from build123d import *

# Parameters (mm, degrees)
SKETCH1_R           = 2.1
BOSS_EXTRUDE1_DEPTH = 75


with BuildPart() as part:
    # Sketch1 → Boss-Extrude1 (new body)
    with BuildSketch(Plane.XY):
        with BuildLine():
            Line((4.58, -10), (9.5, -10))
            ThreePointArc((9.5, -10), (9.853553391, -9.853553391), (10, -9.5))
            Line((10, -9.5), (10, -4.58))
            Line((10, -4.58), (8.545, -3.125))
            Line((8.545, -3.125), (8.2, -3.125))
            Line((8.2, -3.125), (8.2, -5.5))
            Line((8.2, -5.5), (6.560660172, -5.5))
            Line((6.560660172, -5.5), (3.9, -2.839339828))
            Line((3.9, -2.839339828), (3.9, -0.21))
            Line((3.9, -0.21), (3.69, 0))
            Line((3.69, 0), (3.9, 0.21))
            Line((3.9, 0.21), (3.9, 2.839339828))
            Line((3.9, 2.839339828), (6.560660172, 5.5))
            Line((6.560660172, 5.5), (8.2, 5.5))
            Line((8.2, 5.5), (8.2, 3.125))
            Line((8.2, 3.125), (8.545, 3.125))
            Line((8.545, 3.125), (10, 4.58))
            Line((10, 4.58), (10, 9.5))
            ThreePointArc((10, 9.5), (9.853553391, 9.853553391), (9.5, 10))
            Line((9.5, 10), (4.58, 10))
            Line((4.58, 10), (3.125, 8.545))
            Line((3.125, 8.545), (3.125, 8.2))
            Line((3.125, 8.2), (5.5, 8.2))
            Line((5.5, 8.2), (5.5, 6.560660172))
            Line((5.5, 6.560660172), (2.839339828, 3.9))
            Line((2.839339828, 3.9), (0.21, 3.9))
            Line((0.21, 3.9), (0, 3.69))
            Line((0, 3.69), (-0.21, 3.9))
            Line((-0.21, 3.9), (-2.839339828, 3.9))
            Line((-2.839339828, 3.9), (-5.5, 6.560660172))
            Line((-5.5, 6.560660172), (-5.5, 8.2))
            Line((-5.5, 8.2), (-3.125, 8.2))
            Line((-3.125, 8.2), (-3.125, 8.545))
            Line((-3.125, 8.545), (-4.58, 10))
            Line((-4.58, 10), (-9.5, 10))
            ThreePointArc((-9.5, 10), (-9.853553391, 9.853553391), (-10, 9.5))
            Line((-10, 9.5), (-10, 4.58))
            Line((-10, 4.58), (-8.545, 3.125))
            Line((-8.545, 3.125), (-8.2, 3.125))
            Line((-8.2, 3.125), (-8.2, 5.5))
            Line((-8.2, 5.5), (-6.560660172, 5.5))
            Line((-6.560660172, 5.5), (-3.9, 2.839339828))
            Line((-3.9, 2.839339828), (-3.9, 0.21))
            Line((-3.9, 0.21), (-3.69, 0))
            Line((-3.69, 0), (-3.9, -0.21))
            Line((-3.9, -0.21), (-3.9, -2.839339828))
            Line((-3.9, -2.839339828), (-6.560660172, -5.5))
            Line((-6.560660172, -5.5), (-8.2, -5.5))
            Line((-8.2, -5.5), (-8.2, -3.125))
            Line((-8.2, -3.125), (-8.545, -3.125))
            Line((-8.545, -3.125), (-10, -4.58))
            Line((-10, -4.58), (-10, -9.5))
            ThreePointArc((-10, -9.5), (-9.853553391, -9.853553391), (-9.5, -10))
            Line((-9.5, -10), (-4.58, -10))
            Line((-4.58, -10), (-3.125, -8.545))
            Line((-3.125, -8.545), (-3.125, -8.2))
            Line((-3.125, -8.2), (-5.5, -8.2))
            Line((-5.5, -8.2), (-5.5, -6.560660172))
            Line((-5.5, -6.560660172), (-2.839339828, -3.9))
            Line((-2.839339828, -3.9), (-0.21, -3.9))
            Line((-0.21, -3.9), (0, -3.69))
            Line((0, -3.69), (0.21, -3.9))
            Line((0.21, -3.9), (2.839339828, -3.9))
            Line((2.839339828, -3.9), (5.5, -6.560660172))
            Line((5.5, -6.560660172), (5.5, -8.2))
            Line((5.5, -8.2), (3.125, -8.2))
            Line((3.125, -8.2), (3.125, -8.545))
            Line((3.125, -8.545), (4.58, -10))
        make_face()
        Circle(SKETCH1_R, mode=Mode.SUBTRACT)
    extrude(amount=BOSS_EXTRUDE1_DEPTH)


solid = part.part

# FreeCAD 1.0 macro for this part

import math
import FreeCAD as App
import Part
import Sketcher
from FreeCAD import Vector

doc = App.newDocument("Part")
body = doc.addObject("PartDesign::Body", "Body")

# Sketch on XY plane
sketch1 = body.newObject("Sketcher::SketchObject", "Sketch")
sketch1.AttachmentSupport = (doc.getObject("XY_Plane"), [""])
sketch1.MapMode = "FlatFace"
sketch1.addGeometry([
    Part.LineSegment(Vector(4.58, -10, 0), Vector(9.5, -10, 0)),  # 0
    Part.ArcOfCircle(Part.Circle(Vector(9.5, -9.5, 0), Vector(0, 0, 1), 0.5), math.radians(-90), math.radians(0)),  # 1
    Part.LineSegment(Vector(10, -9.5, 0), Vector(10, -4.58, 0)),  # 2
    Part.LineSegment(Vector(10, -4.58, 0), Vector(8.545, -3.125, 0)),  # 3
    Part.LineSegment(Vector(8.545, -3.125, 0), Vector(8.2, -3.125, 0)),  # 4
    Part.LineSegment(Vector(8.2, -3.125, 0), Vector(8.2, -5.5, 0)),  # 5
    Part.LineSegment(Vector(8.2, -5.5, 0), Vector(6.56066, -5.5, 0)),  # 6
    Part.LineSegment(Vector(6.56066, -5.5, 0), Vector(3.9, -2.83934, 0)),  # 7
    Part.LineSegment(Vector(3.9, -2.83934, 0), Vector(3.9, -0.21, 0)),  # 8
    Part.LineSegment(Vector(3.9, -0.21, 0), Vector(3.69, 0, 0)),  # 9
    Part.LineSegment(Vector(3.69, 0, 0), Vector(3.9, 0.21, 0)),  # 10
    Part.LineSegment(Vector(3.9, 0.21, 0), Vector(3.9, 2.83934, 0)),  # 11
    Part.LineSegment(Vector(3.9, 2.83934, 0), Vector(6.56066, 5.5, 0)),  # 12
    Part.LineSegment(Vector(6.56066, 5.5, 0), Vector(8.2, 5.5, 0)),  # 13
    Part.LineSegment(Vector(8.2, 5.5, 0), Vector(8.2, 3.125, 0)),  # 14
    Part.LineSegment(Vector(8.2, 3.125, 0), Vector(8.545, 3.125, 0)),  # 15
    Part.LineSegment(Vector(8.545, 3.125, 0), Vector(10, 4.58, 0)),  # 16
    Part.LineSegment(Vector(10, 4.58, 0), Vector(10, 9.5, 0)),  # 17
    Part.ArcOfCircle(Part.Circle(Vector(9.5, 9.5, 0), Vector(0, 0, 1), 0.5), math.radians(0), math.radians(90)),  # 18
    Part.LineSegment(Vector(9.5, 10, 0), Vector(4.58, 10, 0)),  # 19
    Part.LineSegment(Vector(4.58, 10, 0), Vector(3.125, 8.545, 0)),  # 20
    Part.LineSegment(Vector(3.125, 8.545, 0), Vector(3.125, 8.2, 0)),  # 21
    Part.LineSegment(Vector(3.125, 8.2, 0), Vector(5.5, 8.2, 0)),  # 22
    Part.LineSegment(Vector(5.5, 8.2, 0), Vector(5.5, 6.56066, 0)),  # 23
    Part.LineSegment(Vector(5.5, 6.56066, 0), Vector(2.83934, 3.9, 0)),  # 24
    Part.LineSegment(Vector(2.83934, 3.9, 0), Vector(0.21, 3.9, 0)),  # 25
    Part.LineSegment(Vector(0.21, 3.9, 0), Vector(0, 3.69, 0)),  # 26
    Part.LineSegment(Vector(0, 3.69, 0), Vector(-0.21, 3.9, 0)),  # 27
    Part.LineSegment(Vector(-0.21, 3.9, 0), Vector(-2.83934, 3.9, 0)),  # 28
    Part.LineSegment(Vector(-2.83934, 3.9, 0), Vector(-5.5, 6.56066, 0)),  # 29
    Part.LineSegment(Vector(-5.5, 6.56066, 0), Vector(-5.5, 8.2, 0)),  # 30
    Part.LineSegment(Vector(-5.5, 8.2, 0), Vector(-3.125, 8.2, 0)),  # 31
    Part.LineSegment(Vector(-3.125, 8.2, 0), Vector(-3.125, 8.545, 0)),  # 32
    Part.LineSegment(Vector(-3.125, 8.545, 0), Vector(-4.58, 10, 0)),  # 33
    Part.LineSegment(Vector(-4.58, 10, 0), Vector(-9.5, 10, 0)),  # 34
    Part.ArcOfCircle(Part.Circle(Vector(-9.5, 9.5, 0), Vector(0, 0, 1), 0.5), math.radians(90), math.radians(180)),  # 35
    Part.LineSegment(Vector(-10, 9.5, 0), Vector(-10, 4.58, 0)),  # 36
    Part.LineSegment(Vector(-10, 4.58, 0), Vector(-8.545, 3.125, 0)),  # 37
    Part.LineSegment(Vector(-8.545, 3.125, 0), Vector(-8.2, 3.125, 0)),  # 38
    Part.LineSegment(Vector(-8.2, 3.125, 0), Vector(-8.2, 5.5, 0)),  # 39
    Part.LineSegment(Vector(-8.2, 5.5, 0), Vector(-6.56066, 5.5, 0)),  # 40
    Part.LineSegment(Vector(-6.56066, 5.5, 0), Vector(-3.9, 2.83934, 0)),  # 41
    Part.LineSegment(Vector(-3.9, 2.83934, 0), Vector(-3.9, 0.21, 0)),  # 42
    Part.LineSegment(Vector(-3.9, 0.21, 0), Vector(-3.69, 0, 0)),  # 43
    Part.LineSegment(Vector(-3.69, 0, 0), Vector(-3.9, -0.21, 0)),  # 44
    Part.LineSegment(Vector(-3.9, -0.21, 0), Vector(-3.9, -2.83934, 0)),  # 45
    Part.LineSegment(Vector(-3.9, -2.83934, 0), Vector(-6.56066, -5.5, 0)),  # 46
    Part.LineSegment(Vector(-6.56066, -5.5, 0), Vector(-8.2, -5.5, 0)),  # 47
    Part.LineSegment(Vector(-8.2, -5.5, 0), Vector(-8.2, -3.125, 0)),  # 48
    Part.LineSegment(Vector(-8.2, -3.125, 0), Vector(-8.545, -3.125, 0)),  # 49
    Part.LineSegment(Vector(-8.545, -3.125, 0), Vector(-10, -4.58, 0)),  # 50
    Part.LineSegment(Vector(-10, -4.58, 0), Vector(-10, -9.5, 0)),  # 51
    Part.ArcOfCircle(Part.Circle(Vector(-9.5, -9.5, 0), Vector(0, 0, 1), 0.5), math.radians(180), math.radians(270)),  # 52
    Part.LineSegment(Vector(-9.5, -10, 0), Vector(-4.58, -10, 0)),  # 53
    Part.LineSegment(Vector(-4.58, -10, 0), Vector(-3.125, -8.545, 0)),  # 54
    Part.LineSegment(Vector(-3.125, -8.545, 0), Vector(-3.125, -8.2, 0)),  # 55
    Part.LineSegment(Vector(-3.125, -8.2, 0), Vector(-5.5, -8.2, 0)),  # 56
    Part.LineSegment(Vector(-5.5, -8.2, 0), Vector(-5.5, -6.56066, 0)),  # 57
    Part.LineSegment(Vector(-5.5, -6.56066, 0), Vector(-2.83934, -3.9, 0)),  # 58
    Part.LineSegment(Vector(-2.83934, -3.9, 0), Vector(-0.21, -3.9, 0)),  # 59
    Part.LineSegment(Vector(-0.21, -3.9, 0), Vector(0, -3.69, 0)),  # 60
    Part.LineSegment(Vector(0, -3.69, 0), Vector(0.21, -3.9, 0)),  # 61
    Part.LineSegment(Vector(0.21, -3.9, 0), Vector(2.83934, -3.9, 0)),  # 62
    Part.LineSegment(Vector(2.83934, -3.9, 0), Vector(5.5, -6.56066, 0)),  # 63
    Part.LineSegment(Vector(5.5, -6.56066, 0), Vector(5.5, -8.2, 0)),  # 64
    Part.LineSegment(Vector(5.5, -8.2, 0), Vector(3.125, -8.2, 0)),  # 65
    Part.LineSegment(Vector(3.125, -8.2, 0), Vector(3.125, -8.545, 0)),  # 66
    Part.LineSegment(Vector(3.125, -8.545, 0), Vector(4.58, -10, 0)),  # 67
    Part.Circle(Vector(0, 0, 0), Vector(0, 0, 1), 2.1),  # 68
], False)
sketch1.addConstraint([
    Sketcher.Constraint("Tangent", 0, 2, 1, 1),
    Sketcher.Constraint("Tangent", 1, 2, 2, 1),
    Sketcher.Constraint("Coincident", 2, 2, 3, 1),
    Sketcher.Constraint("Coincident", 3, 2, 4, 1),
    Sketcher.Constraint("Coincident", 4, 2, 5, 1),
    Sketcher.Constraint("Coincident", 5, 2, 6, 1),
    Sketcher.Constraint("Coincident", 6, 2, 7, 1),
    Sketcher.Constraint("Coincident", 7, 2, 8, 1),
    Sketcher.Constraint("Coincident", 8, 2, 9, 1),
    Sketcher.Constraint("Coincident", 9, 2, 10, 1),
    Sketcher.Constraint("Coincident", 10, 2, 11, 1),
    Sketcher.Constraint("Coincident", 11, 2, 12, 1),
    Sketcher.Constraint("Coincident", 12, 2, 13, 1),
    Sketcher.Constraint("Coincident", 13, 2, 14, 1),
    Sketcher.Constraint("Coincident", 14, 2, 15, 1),
    Sketcher.Constraint("Coincident", 15, 2, 16, 1),
    Sketcher.Constraint("Coincident", 16, 2, 17, 1),
    Sketcher.Constraint("Tangent", 17, 2, 18, 1),
    Sketcher.Constraint("Tangent", 18, 2, 19, 1),
    Sketcher.Constraint("Coincident", 19, 2, 20, 1),
    Sketcher.Constraint("Coincident", 20, 2, 21, 1),
    Sketcher.Constraint("Coincident", 21, 2, 22, 1),
    Sketcher.Constraint("Coincident", 22, 2, 23, 1),
    Sketcher.Constraint("Coincident", 23, 2, 24, 1),
    Sketcher.Constraint("Coincident", 24, 2, 25, 1),
    Sketcher.Constraint("Coincident", 25, 2, 26, 1),
    Sketcher.Constraint("Coincident", 26, 2, 27, 1),
    Sketcher.Constraint("Coincident", 27, 2, 28, 1),
    Sketcher.Constraint("Coincident", 28, 2, 29, 1),
    Sketcher.Constraint("Coincident", 29, 2, 30, 1),
    Sketcher.Constraint("Coincident", 30, 2, 31, 1),
    Sketcher.Constraint("Coincident", 31, 2, 32, 1),
    Sketcher.Constraint("Coincident", 32, 2, 33, 1),
    Sketcher.Constraint("Coincident", 33, 2, 34, 1),
    Sketcher.Constraint("Tangent", 34, 2, 35, 1),
    Sketcher.Constraint("Tangent", 35, 2, 36, 1),
    Sketcher.Constraint("Coincident", 36, 2, 37, 1),
    Sketcher.Constraint("Coincident", 37, 2, 38, 1),
    Sketcher.Constraint("Coincident", 38, 2, 39, 1),
    Sketcher.Constraint("Coincident", 39, 2, 40, 1),
    Sketcher.Constraint("Coincident", 40, 2, 41, 1),
    Sketcher.Constraint("Coincident", 41, 2, 42, 1),
    Sketcher.Constraint("Coincident", 42, 2, 43, 1),
    Sketcher.Constraint("Coincident", 43, 2, 44, 1),
    Sketcher.Constraint("Coincident", 44, 2, 45, 1),
    Sketcher.Constraint("Coincident", 45, 2, 46, 1),
    Sketcher.Constraint("Coincident", 46, 2, 47, 1),
    Sketcher.Constraint("Coincident", 47, 2, 48, 1),
    Sketcher.Constraint("Coincident", 48, 2, 49, 1),
    Sketcher.Constraint("Coincident", 49, 2, 50, 1),
    Sketcher.Constraint("Coincident", 50, 2, 51, 1),
    Sketcher.Constraint("Tangent", 51, 2, 52, 1),
    Sketcher.Constraint("Tangent", 52, 2, 53, 1),
    Sketcher.Constraint("Coincident", 53, 2, 54, 1),
    Sketcher.Constraint("Coincident", 54, 2, 55, 1),
    Sketcher.Constraint("Coincident", 55, 2, 56, 1),
    Sketcher.Constraint("Coincident", 56, 2, 57, 1),
    Sketcher.Constraint("Coincident", 57, 2, 58, 1),
    Sketcher.Constraint("Coincident", 58, 2, 59, 1),
    Sketcher.Constraint("Coincident", 59, 2, 60, 1),
    Sketcher.Constraint("Coincident", 60, 2, 61, 1),
    Sketcher.Constraint("Coincident", 61, 2, 62, 1),
    Sketcher.Constraint("Coincident", 62, 2, 63, 1),
    Sketcher.Constraint("Coincident", 63, 2, 64, 1),
    Sketcher.Constraint("Coincident", 64, 2, 65, 1),
    Sketcher.Constraint("Coincident", 65, 2, 66, 1),
    Sketcher.Constraint("Coincident", 66, 2, 67, 1),
    Sketcher.Constraint("Coincident", 67, 2, 0, 1),
    Sketcher.Constraint("Horizontal", 0),
    Sketcher.Constraint("Vertical", 2),
    Sketcher.Constraint("Horizontal", 4),
    Sketcher.Constraint("Vertical", 5),
    Sketcher.Constraint("Horizontal", 6),
    Sketcher.Constraint("Vertical", 8),
    Sketcher.Constraint("Vertical", 11),
    Sketcher.Constraint("Horizontal", 13),
    Sketcher.Constraint("Vertical", 14),
    Sketcher.Constraint("Horizontal", 15),
    Sketcher.Constraint("Vertical", 17),
    Sketcher.Constraint("Horizontal", 19),
    Sketcher.Constraint("Vertical", 21),
    Sketcher.Constraint("Horizontal", 22),
    Sketcher.Constraint("Vertical", 23),
    Sketcher.Constraint("Horizontal", 25),
    Sketcher.Constraint("Horizontal", 28),
    Sketcher.Constraint("Vertical", 30),
    Sketcher.Constraint("Horizontal", 31),
    Sketcher.Constraint("Vertical", 32),
    Sketcher.Constraint("Horizontal", 34),
    Sketcher.Constraint("Vertical", 36),
    Sketcher.Constraint("Horizontal", 38),
    Sketcher.Constraint("Vertical", 39),
    Sketcher.Constraint("Horizontal", 40),
    Sketcher.Constraint("Vertical", 42),
    Sketcher.Constraint("Vertical", 45),
    Sketcher.Constraint("Horizontal", 47),
    Sketcher.Constraint("Vertical", 48),
    Sketcher.Constraint("Horizontal", 49),
    Sketcher.Constraint("Vertical", 51),
    Sketcher.Constraint("Horizontal", 53),
    Sketcher.Constraint("Vertical", 55),
    Sketcher.Constraint("Horizontal", 56),
    Sketcher.Constraint("Vertical", 57),
    Sketcher.Constraint("Horizontal", 59),
    Sketcher.Constraint("Horizontal", 62),
    Sketcher.Constraint("Vertical", 64),
    Sketcher.Constraint("Horizontal", 65),
    Sketcher.Constraint("Vertical", 66),
    Sketcher.Constraint("Coincident", 68, 3, -1, 1),
    Sketcher.Constraint("Equal", 1, 18),
    Sketcher.Constraint("Equal", 18, 35),
    Sketcher.Constraint("Equal", 35, 52),
    Sketcher.Constraint("Symmetric", 1, 3, 35, 3, -1, 1),
    Sketcher.Constraint("Symmetric", 18, 3, 52, 3, -1, 1),
    Sketcher.Constraint("Symmetric", 3, 2, 37, 2, -1, 1),
    Sketcher.Constraint("Symmetric", 5, 2, 39, 2, -1, 1),
    Sketcher.Constraint("Symmetric", 7, 2, 41, 2, -1, 1),
    Sketcher.Constraint("Symmetric", 9, 2, 43, 2, -1, 1),
    Sketcher.Constraint("Symmetric", 10, 2, 44, 2, -1, 1),
    Sketcher.Constraint("Symmetric", 12, 2, 46, 2, -1, 1),
    Sketcher.Constraint("Symmetric", 14, 2, 48, 2, -1, 1),
    Sketcher.Constraint("Symmetric", 20, 2, 54, 2, -1, 1),
    Sketcher.Constraint("Symmetric", 22, 2, 56, 2, -1, 1),
    Sketcher.Constraint("Symmetric", 24, 2, 58, 2, -1, 1),
    Sketcher.Constraint("Symmetric", 26, 2, 60, 2, -1, 1),
    Sketcher.Constraint("Symmetric", 27, 2, 61, 2, -1, 1),
    Sketcher.Constraint("Symmetric", 29, 2, 63, 2, -1, 1),
    Sketcher.Constraint("Symmetric", 31, 2, 65, 2, -1, 1),
    Sketcher.Constraint("Symmetric", 18, 3, 35, 3, -2),
    Sketcher.Constraint("Symmetric", 25, 2, 27, 2, -2),
    Sketcher.Constraint("Symmetric", 23, 2, 29, 2, -2),
    Sketcher.Constraint("Symmetric", 21, 2, 31, 2, -2),
    Sketcher.Constraint("Symmetric", 15, 2, 37, 2, -2),
    Sketcher.Constraint("Symmetric", 13, 2, 39, 2, -2),
    Sketcher.Constraint("Symmetric", 11, 2, 41, 2, -2),
    Sketcher.Constraint("PointOnObject", 9, 2, -1),
    Sketcher.Constraint("PointOnObject", 26, 2, -2),
    Sketcher.Constraint("Parallel", 3, 7),
    Sketcher.Constraint("Parallel", 7, 9),
    Sketcher.Constraint("Perpendicular", 9, 10),
    Sketcher.Constraint("Parallel", 10, 12),
    Sketcher.Constraint("Parallel", 12, 16),
    Sketcher.Constraint("Parallel", 16, 20),
    Sketcher.Constraint("Parallel", 20, 24),
    Sketcher.Constraint("Parallel", 24, 26),
    Sketcher.Constraint("Perpendicular", 26, 27),
    Sketcher.Constraint("Parallel", 27, 29),
    Sketcher.Constraint("Parallel", 29, 33),
    Sketcher.Constraint("Parallel", 33, 37),
    Sketcher.Constraint("Parallel", 37, 41),
    Sketcher.Constraint("Parallel", 41, 43),
    Sketcher.Constraint("Parallel", 44, 46),
    Sketcher.Constraint("Parallel", 46, 50),
    Sketcher.Constraint("Parallel", 50, 54),
    Sketcher.Constraint("Parallel", 54, 58),
    Sketcher.Constraint("Parallel", 58, 60),
    Sketcher.Constraint("Parallel", 61, 63),
    Sketcher.Constraint("Parallel", 63, 67),
    Sketcher.Constraint("Horizontal", 20, 2, 32, 2),
    Sketcher.Constraint("Horizontal", 2, 2, 50, 2),
    Sketcher.Constraint("Horizontal", 54, 2, 66, 2),
    Sketcher.Constraint("Equal", 53, 2),
    Sketcher.Constraint("Equal", 65, 5),
    Sketcher.Constraint("Equal", 62, 8),
    Sketcher.Constraint("Equal", 49, 21),
    Sketcher.Constraint("Equal", 47, 23),
    Sketcher.Constraint("Equal", 16, 20),
    Sketcher.Constraint("Equal", 12, 24),
    Sketcher.Constraint("Equal", 10, 26),
    Sketcher.Constraint("Diameter", 68, 4.2),
    Sketcher.Constraint("Radius", 1, 0.5),
    Sketcher.Constraint("DistanceY", 0, 2, -1, 1, 10.0),
    Sketcher.Constraint("DistanceX", 0, 1, 0, 2, 4.92),
    Sketcher.Constraint("DistanceX", -1, 1, 4, 2, 8.2),
    Sketcher.Constraint("DistanceY", 5, 2, -1, 1, 5.5),
    Sketcher.Constraint("DistanceX", -1, 1, 7, 2, 3.9),
    Sketcher.Constraint("DistanceX", 4, 2, 4, 1, 0.345),
    Sketcher.Constraint("DistanceY", 8, 2, -1, 1, 0.21),
    Sketcher.Constraint("DistanceX", 6, 2, 6, 1, 1.63934),
])
pad1 = body.newObject("PartDesign::Pad", "Pad")
pad1.Profile = sketch1
pad1.Length = 75

doc.recompute()
